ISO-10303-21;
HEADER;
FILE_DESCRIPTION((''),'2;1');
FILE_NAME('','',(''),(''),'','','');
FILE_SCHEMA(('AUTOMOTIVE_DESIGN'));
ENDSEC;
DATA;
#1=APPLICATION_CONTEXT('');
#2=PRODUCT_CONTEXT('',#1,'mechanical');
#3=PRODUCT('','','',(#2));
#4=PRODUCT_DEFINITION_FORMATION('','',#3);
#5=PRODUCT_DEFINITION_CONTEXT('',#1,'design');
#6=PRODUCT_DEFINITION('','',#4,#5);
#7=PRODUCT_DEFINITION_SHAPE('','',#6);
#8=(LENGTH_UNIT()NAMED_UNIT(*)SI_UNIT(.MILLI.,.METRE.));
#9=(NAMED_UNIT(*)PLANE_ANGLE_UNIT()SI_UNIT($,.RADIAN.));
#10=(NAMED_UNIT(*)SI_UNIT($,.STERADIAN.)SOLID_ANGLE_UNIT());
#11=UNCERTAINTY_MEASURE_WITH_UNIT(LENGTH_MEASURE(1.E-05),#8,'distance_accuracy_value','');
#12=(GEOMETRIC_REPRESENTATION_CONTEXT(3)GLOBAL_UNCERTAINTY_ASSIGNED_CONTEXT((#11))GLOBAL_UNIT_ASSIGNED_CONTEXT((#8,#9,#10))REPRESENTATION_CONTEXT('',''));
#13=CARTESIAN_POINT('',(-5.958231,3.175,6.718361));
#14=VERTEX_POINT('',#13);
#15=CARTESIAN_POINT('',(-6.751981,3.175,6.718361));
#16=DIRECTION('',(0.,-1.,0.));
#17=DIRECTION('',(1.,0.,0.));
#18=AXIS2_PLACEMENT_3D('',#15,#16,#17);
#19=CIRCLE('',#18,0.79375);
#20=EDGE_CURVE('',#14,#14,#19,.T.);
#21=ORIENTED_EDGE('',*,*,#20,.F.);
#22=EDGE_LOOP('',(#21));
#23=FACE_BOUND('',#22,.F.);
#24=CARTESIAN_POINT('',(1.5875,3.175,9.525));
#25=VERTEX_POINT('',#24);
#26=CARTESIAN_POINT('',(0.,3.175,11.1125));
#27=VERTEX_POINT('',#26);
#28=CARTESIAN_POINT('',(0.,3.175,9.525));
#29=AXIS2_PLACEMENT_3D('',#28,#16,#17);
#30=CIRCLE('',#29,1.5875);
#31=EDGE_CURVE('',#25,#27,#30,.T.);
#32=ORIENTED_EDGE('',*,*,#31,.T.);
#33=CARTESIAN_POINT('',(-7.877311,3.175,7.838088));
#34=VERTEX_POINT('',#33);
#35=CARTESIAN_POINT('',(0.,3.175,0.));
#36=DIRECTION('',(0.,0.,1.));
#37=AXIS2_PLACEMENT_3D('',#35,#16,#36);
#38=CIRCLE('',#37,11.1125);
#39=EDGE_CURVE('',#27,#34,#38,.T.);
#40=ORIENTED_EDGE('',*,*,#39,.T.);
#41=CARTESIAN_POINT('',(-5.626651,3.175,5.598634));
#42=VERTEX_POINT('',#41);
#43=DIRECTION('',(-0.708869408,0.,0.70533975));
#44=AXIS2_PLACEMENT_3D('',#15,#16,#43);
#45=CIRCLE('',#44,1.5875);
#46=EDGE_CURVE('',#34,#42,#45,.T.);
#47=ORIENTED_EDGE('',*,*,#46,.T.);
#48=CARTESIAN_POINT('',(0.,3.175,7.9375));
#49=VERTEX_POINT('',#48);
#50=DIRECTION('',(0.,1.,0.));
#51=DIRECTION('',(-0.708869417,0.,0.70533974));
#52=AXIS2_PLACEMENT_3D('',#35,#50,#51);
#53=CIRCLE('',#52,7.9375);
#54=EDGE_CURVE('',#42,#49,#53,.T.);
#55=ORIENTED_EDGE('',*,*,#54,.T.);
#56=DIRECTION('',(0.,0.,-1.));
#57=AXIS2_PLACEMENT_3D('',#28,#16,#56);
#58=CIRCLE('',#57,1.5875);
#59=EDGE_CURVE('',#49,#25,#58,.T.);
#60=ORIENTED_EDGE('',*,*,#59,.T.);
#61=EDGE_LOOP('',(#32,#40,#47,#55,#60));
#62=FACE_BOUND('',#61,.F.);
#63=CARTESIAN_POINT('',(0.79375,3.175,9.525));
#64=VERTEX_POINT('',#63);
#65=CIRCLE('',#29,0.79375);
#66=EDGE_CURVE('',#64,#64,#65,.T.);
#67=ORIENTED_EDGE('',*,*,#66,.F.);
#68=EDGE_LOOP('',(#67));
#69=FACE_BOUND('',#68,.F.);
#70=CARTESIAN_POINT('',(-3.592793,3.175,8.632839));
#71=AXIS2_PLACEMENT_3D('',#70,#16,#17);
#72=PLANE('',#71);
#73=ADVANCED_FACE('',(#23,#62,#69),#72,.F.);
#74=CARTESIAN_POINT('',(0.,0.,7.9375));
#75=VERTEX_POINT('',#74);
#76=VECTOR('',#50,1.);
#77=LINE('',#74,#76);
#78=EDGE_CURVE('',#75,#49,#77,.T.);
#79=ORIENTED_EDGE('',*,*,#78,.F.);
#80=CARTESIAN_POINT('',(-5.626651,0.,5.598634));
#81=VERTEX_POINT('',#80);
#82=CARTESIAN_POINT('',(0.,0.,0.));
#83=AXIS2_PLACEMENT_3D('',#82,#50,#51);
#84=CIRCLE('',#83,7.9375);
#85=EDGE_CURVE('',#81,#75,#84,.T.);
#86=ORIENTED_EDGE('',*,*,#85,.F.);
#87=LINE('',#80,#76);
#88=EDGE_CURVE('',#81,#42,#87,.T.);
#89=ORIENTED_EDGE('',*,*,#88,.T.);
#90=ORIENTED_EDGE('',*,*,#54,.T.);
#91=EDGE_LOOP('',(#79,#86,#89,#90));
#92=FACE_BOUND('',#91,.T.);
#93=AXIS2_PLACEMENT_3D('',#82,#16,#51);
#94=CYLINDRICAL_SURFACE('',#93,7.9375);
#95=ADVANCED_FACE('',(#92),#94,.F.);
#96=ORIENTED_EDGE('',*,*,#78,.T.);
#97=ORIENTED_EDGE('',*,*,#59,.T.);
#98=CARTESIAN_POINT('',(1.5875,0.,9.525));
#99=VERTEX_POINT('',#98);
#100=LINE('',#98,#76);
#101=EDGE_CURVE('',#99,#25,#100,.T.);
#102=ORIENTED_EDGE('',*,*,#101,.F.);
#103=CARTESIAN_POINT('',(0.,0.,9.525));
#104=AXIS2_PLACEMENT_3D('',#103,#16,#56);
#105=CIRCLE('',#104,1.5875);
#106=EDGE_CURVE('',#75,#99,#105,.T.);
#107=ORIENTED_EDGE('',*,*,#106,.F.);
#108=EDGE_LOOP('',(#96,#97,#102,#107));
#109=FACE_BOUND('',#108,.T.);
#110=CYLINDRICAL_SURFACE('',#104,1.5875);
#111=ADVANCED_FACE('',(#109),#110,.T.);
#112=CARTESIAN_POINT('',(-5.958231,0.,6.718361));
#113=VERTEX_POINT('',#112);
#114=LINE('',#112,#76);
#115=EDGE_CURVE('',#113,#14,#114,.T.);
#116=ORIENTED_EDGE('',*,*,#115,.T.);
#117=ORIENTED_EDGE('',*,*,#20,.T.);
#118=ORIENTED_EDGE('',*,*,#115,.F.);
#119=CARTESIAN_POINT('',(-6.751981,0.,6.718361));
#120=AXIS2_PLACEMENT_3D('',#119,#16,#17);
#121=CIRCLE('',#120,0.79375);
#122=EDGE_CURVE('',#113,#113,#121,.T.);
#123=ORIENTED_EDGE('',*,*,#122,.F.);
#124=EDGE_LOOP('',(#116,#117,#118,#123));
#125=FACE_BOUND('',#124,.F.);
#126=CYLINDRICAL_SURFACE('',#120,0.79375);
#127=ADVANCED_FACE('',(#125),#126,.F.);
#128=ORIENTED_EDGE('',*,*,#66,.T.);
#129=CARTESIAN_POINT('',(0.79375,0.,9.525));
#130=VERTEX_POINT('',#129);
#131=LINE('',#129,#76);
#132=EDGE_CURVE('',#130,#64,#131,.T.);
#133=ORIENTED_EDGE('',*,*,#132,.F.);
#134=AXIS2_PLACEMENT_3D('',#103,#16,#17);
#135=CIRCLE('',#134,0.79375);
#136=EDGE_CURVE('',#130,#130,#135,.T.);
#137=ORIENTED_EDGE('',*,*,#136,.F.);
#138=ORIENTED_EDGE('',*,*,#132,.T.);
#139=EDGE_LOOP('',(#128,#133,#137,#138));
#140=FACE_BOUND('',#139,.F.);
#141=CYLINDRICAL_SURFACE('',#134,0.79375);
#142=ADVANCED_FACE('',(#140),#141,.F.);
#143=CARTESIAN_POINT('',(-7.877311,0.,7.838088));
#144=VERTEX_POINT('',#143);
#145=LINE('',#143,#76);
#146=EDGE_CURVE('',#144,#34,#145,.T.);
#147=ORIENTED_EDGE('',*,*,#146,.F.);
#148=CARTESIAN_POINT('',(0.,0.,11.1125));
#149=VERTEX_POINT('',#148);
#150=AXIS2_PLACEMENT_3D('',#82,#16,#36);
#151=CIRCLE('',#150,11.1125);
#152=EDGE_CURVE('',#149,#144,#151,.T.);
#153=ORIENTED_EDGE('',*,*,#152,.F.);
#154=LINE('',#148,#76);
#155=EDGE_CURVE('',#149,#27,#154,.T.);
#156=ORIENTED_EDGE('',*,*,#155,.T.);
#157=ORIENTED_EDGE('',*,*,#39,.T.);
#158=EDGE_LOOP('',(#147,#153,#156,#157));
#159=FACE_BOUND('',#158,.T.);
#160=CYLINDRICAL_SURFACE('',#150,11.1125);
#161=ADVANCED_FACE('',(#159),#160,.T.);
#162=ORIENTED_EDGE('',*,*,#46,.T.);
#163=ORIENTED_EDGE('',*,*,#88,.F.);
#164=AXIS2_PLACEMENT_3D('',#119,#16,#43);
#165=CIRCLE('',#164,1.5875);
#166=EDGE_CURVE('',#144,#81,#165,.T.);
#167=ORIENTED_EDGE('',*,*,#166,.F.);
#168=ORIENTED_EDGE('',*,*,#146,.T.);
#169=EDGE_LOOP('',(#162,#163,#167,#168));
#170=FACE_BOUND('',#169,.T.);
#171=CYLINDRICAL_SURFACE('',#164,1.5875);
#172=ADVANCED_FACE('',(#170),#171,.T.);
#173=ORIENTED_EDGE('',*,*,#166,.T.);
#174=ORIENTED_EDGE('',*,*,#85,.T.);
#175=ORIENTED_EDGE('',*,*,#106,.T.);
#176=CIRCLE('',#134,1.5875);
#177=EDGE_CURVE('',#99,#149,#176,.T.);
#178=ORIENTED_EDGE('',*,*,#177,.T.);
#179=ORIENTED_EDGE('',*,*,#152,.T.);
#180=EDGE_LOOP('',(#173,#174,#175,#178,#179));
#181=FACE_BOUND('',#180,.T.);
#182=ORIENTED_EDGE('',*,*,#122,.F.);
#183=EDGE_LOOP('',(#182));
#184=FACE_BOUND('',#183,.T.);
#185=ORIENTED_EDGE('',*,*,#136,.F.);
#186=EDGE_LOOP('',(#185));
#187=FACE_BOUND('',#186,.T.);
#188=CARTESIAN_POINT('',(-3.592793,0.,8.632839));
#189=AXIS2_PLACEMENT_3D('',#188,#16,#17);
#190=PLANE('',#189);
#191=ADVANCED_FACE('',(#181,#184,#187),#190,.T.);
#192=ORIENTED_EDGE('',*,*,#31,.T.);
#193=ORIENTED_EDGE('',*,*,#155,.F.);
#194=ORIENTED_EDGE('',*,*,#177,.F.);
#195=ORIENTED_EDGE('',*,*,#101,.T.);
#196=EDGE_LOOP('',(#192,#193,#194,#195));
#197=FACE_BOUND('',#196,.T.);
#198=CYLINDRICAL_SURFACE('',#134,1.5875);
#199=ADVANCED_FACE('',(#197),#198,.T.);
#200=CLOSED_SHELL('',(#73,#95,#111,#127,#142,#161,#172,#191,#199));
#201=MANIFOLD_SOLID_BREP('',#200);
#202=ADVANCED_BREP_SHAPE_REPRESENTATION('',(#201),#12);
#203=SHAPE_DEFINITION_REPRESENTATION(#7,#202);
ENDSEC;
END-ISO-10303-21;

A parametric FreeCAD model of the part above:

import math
import FreeCAD as App
import Part
import Sketcher
from FreeCAD import Vector
Q = App.Units.Quantity

doc = App.newDocument("Part")
body = doc.addObject("PartDesign::Body", "Body")

sketch1 = body.newObject("Sketcher::SketchObject", "Sketch")
sketch1.AttachmentSupport = (doc.getObject("XZ_Plane"), [""])
sketch1.MapMode = "FlatFace"
sketch1.addGeometry(Part.ArcOfCircle(Part.Circle(Vector(0, 0, 0), Vector(0, 0, 1), 7.9), math.radians(90), math.radians(135)), False)
sketch1.addGeometry(Part.ArcOfCircle(Part.Circle(Vector(0, 9.5, 0), Vector(0, 0, 1), 1.6), math.radians(-90), math.radians(0)), False)
sketch1.addGeometry(Part.ArcOfCircle(Part.Circle(Vector(0, 9.5, 0), Vector(0, 0, 1), 1.6), math.radians(0), math.radians(90)), False)
sketch1.addGeometry(Part.ArcOfCircle(Part.Circle(Vector(0, 0, 0), Vector(0, 0, 1), 11.1), math.radians(90), math.radians(135)), False)
sketch1.addGeometry(Part.ArcOfCircle(Part.Circle(Vector(-6.8, 6.7, 0), Vector(0, 0, 1), 1.6), math.radians(135), math.radians(315)), False)
sketch1.addGeometry(Part.Circle(Vector(-6.8, 6.7, 0), Vector(0, 0, 1), 0.8), False)
sketch1.addGeometry(Part.Circle(Vector(0, 9.5, 0), Vector(0, 0, 1), 0.8), False)
sketch1.addConstraint(Sketcher.Constraint("Tangent", 0, 1, 1, 1))
sketch1.addConstraint(Sketcher.Constraint("Tangent", 1, 2, 2, 1))
sketch1.addConstraint(Sketcher.Constraint("Tangent", 2, 2, 3, 1))
sketch1.addConstraint(Sketcher.Constraint("Tangent", 3, 2, 4, 1))
sketch1.addConstraint(Sketcher.Constraint("Tangent", 4, 2, 0, 2))
sketch1.addConstraint(Sketcher.Constraint("Coincident", 0, 3, -1, 1))
sketch1.addConstraint(Sketcher.Constraint("Coincident", 3, 3, -1, 1))
sketch1.addConstraint(Sketcher.Constraint("Coincident", 5, 3, 4, 3))
sketch1.addConstraint(Sketcher.Constraint("Coincident", 6, 3, 1, 3))
sketch1.addConstraint(Sketcher.Constraint("Equal", 1, 2))
sketch1.addConstraint(Sketcher.Constraint("Equal", 5, 6))
sketch1.addConstraint(Sketcher.Constraint("PointOnObject", 1, 3, -2))
sketch1.addConstraint(Sketcher.Constraint("Horizontal", 6, 3, 1, 2))
sketch1.addConstraint(Sketcher.Constraint("Diameter", 5, Q("0.0625 in")))
sketch1.addConstraint(Sketcher.Constraint("Radius", 0, Q("0.3125 in")))
sketch1.addConstraint(Sketcher.Constraint("Radius", 1, Q("0.0625 in")))
sketch1.addConstraint(Sketcher.Constraint("DistanceX", 4, 3, -1, 1, Q("6.751981 mm")))
pad1 = body.newObject("PartDesign::Pad", "Pad")
pad1.Profile = sketch1
pad1.Length = Q("0.125 in")
pad1.Reversed = True

doc.recompute()
